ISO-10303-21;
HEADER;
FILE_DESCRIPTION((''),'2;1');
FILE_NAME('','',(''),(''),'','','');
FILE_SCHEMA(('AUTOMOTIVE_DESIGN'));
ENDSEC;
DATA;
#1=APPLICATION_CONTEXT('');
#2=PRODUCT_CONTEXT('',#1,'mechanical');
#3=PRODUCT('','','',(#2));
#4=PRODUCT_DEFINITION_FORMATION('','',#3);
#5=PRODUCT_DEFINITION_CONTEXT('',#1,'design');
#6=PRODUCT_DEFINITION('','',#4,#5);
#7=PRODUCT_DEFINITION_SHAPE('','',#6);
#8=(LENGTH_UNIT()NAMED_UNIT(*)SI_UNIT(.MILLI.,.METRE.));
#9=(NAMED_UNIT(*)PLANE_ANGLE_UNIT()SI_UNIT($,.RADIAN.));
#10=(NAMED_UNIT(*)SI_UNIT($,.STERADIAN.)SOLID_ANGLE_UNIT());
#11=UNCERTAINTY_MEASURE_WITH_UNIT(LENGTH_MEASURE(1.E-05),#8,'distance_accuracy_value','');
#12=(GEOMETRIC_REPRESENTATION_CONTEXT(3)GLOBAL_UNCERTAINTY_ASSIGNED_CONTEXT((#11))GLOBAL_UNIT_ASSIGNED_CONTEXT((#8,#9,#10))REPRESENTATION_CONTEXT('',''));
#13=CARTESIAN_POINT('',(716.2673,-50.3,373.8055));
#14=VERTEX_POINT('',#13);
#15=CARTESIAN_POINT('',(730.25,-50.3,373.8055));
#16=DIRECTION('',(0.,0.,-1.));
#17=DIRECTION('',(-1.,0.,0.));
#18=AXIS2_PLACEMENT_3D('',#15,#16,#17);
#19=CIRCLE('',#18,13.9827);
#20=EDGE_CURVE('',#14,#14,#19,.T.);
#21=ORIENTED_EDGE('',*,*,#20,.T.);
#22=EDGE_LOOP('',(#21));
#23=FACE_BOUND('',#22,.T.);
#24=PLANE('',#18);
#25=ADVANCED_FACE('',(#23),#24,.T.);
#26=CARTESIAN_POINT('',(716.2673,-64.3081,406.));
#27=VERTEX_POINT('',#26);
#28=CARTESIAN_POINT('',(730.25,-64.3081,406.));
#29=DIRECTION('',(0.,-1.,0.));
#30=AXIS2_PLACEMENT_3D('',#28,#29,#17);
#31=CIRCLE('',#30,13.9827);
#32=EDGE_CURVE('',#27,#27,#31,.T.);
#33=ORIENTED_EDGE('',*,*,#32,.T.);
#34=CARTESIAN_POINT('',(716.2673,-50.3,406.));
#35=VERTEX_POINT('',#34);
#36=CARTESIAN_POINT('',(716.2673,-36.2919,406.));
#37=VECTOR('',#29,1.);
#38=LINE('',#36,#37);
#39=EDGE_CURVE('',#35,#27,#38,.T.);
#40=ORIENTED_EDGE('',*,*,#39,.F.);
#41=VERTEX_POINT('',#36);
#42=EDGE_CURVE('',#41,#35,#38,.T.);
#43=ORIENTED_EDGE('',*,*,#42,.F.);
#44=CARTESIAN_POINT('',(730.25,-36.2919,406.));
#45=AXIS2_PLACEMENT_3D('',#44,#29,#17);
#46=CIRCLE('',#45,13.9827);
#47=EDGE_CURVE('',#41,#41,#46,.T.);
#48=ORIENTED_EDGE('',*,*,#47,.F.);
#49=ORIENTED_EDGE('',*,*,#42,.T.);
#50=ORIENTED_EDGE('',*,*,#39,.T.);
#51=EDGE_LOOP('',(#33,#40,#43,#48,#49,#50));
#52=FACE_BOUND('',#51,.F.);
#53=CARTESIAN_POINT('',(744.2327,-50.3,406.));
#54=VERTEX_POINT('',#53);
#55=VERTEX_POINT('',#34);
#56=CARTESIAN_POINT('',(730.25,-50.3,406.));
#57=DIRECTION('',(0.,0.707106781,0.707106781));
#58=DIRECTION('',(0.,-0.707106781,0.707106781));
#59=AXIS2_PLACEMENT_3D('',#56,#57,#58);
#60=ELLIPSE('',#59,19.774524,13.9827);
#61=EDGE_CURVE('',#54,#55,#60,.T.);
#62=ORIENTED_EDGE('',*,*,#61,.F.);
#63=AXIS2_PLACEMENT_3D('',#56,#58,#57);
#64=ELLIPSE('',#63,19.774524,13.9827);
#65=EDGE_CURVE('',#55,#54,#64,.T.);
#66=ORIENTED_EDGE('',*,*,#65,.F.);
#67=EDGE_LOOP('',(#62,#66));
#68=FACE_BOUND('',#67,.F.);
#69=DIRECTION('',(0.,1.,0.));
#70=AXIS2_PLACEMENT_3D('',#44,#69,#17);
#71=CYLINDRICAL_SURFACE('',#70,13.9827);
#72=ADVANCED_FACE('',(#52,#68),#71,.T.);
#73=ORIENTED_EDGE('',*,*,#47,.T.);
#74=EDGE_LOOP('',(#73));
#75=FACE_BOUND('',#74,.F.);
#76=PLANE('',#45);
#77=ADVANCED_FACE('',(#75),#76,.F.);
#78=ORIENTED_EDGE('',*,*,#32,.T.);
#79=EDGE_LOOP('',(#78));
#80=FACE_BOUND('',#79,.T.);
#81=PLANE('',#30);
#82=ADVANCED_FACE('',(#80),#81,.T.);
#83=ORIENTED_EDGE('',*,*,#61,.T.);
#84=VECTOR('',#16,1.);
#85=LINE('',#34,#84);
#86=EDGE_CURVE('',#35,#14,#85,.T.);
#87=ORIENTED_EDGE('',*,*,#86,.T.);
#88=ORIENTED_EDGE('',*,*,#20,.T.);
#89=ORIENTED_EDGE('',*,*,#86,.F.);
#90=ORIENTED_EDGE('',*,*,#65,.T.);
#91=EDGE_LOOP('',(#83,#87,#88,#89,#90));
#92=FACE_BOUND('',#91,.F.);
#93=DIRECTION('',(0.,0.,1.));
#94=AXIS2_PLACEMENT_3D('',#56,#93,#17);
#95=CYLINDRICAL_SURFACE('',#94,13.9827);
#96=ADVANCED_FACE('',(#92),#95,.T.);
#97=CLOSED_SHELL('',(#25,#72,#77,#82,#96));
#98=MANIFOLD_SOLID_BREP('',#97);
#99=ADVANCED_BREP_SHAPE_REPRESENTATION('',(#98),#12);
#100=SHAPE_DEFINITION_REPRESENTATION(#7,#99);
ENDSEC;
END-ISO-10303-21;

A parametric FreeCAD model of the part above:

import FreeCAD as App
import Part
import Sketcher
Q = App.Units.Quantity

doc = App.newDocument("Part")
body = doc.addObject("PartDesign::Body", "Body")

# Sketch on XZ plane
sketch1 = body.newObject("Sketcher::SketchObject", "Sketch")
sketch1.AttachmentSupport = (doc.getObject("XZ_Plane"), [""])
sketch1.MapMode = "FlatFace"
sketch1.AttachmentOffset = App.Placement(App.Vector(0, 0, -0.5515 * 25.4), App.Rotation())
sketch1.addGeometry(Part.Circle(App.Vector(0, 0, 0), App.Vector(0, 0, 1), 13.9827), False)
sketch1.addConstraint(Sketcher.Constraint("Coincident", 0, 3, -1, 1))
sketch1.addConstraint(Sketcher.Constraint("Diameter", 0, Q("1.101 in")))
pad1 = body.newObject("PartDesign::Pad", "Pad")
pad1.Profile = sketch1
pad1.Length = Q("1.103 in")
body2 = doc.addObject("PartDesign::Body", "Body001")

# Sketch on XY plane
sketch2 = body2.newObject("Sketcher::SketchObject", "Sketch001")
sketch2.AttachmentSupport = (doc.getObject("XY_Plane001"), [""])
sketch2.MapMode = "FlatFace"
sketch2.addGeometry(Part.Circle(App.Vector(0, 0, 0), App.Vector(0, 0, 1), 13.9827), False)
sketch2.addConstraint(Sketcher.Constraint("Coincident", 0, 3, -1, 1))
sketch2.addConstraint(Sketcher.Constraint("Diameter", 0, Q("1.101 in")))
pad2 = body2.newObject("PartDesign::Pad", "Pad001")
pad2.Profile = sketch2
pad2.Length = Q("1.2675 in")
doc.recompute()

boolean = body2.newObject("PartDesign::Boolean", "Boolean")
boolean.Type = "Fuse"
boolean.addObjects([body])
body3 = doc.addObject("PartDesign::Body", "Body002")
doc.recompute()

body2.Placement = App.Placement(App.Vector(730.25, -50.3, 406), App.Rotation(App.Vector(0, 1, 0), 180))
boolean2 = body3.newObject("PartDesign::Boolean", "Boolean001")
boolean2.Type = "Fuse"
boolean2.addObjects([body2])

doc.recompute()
